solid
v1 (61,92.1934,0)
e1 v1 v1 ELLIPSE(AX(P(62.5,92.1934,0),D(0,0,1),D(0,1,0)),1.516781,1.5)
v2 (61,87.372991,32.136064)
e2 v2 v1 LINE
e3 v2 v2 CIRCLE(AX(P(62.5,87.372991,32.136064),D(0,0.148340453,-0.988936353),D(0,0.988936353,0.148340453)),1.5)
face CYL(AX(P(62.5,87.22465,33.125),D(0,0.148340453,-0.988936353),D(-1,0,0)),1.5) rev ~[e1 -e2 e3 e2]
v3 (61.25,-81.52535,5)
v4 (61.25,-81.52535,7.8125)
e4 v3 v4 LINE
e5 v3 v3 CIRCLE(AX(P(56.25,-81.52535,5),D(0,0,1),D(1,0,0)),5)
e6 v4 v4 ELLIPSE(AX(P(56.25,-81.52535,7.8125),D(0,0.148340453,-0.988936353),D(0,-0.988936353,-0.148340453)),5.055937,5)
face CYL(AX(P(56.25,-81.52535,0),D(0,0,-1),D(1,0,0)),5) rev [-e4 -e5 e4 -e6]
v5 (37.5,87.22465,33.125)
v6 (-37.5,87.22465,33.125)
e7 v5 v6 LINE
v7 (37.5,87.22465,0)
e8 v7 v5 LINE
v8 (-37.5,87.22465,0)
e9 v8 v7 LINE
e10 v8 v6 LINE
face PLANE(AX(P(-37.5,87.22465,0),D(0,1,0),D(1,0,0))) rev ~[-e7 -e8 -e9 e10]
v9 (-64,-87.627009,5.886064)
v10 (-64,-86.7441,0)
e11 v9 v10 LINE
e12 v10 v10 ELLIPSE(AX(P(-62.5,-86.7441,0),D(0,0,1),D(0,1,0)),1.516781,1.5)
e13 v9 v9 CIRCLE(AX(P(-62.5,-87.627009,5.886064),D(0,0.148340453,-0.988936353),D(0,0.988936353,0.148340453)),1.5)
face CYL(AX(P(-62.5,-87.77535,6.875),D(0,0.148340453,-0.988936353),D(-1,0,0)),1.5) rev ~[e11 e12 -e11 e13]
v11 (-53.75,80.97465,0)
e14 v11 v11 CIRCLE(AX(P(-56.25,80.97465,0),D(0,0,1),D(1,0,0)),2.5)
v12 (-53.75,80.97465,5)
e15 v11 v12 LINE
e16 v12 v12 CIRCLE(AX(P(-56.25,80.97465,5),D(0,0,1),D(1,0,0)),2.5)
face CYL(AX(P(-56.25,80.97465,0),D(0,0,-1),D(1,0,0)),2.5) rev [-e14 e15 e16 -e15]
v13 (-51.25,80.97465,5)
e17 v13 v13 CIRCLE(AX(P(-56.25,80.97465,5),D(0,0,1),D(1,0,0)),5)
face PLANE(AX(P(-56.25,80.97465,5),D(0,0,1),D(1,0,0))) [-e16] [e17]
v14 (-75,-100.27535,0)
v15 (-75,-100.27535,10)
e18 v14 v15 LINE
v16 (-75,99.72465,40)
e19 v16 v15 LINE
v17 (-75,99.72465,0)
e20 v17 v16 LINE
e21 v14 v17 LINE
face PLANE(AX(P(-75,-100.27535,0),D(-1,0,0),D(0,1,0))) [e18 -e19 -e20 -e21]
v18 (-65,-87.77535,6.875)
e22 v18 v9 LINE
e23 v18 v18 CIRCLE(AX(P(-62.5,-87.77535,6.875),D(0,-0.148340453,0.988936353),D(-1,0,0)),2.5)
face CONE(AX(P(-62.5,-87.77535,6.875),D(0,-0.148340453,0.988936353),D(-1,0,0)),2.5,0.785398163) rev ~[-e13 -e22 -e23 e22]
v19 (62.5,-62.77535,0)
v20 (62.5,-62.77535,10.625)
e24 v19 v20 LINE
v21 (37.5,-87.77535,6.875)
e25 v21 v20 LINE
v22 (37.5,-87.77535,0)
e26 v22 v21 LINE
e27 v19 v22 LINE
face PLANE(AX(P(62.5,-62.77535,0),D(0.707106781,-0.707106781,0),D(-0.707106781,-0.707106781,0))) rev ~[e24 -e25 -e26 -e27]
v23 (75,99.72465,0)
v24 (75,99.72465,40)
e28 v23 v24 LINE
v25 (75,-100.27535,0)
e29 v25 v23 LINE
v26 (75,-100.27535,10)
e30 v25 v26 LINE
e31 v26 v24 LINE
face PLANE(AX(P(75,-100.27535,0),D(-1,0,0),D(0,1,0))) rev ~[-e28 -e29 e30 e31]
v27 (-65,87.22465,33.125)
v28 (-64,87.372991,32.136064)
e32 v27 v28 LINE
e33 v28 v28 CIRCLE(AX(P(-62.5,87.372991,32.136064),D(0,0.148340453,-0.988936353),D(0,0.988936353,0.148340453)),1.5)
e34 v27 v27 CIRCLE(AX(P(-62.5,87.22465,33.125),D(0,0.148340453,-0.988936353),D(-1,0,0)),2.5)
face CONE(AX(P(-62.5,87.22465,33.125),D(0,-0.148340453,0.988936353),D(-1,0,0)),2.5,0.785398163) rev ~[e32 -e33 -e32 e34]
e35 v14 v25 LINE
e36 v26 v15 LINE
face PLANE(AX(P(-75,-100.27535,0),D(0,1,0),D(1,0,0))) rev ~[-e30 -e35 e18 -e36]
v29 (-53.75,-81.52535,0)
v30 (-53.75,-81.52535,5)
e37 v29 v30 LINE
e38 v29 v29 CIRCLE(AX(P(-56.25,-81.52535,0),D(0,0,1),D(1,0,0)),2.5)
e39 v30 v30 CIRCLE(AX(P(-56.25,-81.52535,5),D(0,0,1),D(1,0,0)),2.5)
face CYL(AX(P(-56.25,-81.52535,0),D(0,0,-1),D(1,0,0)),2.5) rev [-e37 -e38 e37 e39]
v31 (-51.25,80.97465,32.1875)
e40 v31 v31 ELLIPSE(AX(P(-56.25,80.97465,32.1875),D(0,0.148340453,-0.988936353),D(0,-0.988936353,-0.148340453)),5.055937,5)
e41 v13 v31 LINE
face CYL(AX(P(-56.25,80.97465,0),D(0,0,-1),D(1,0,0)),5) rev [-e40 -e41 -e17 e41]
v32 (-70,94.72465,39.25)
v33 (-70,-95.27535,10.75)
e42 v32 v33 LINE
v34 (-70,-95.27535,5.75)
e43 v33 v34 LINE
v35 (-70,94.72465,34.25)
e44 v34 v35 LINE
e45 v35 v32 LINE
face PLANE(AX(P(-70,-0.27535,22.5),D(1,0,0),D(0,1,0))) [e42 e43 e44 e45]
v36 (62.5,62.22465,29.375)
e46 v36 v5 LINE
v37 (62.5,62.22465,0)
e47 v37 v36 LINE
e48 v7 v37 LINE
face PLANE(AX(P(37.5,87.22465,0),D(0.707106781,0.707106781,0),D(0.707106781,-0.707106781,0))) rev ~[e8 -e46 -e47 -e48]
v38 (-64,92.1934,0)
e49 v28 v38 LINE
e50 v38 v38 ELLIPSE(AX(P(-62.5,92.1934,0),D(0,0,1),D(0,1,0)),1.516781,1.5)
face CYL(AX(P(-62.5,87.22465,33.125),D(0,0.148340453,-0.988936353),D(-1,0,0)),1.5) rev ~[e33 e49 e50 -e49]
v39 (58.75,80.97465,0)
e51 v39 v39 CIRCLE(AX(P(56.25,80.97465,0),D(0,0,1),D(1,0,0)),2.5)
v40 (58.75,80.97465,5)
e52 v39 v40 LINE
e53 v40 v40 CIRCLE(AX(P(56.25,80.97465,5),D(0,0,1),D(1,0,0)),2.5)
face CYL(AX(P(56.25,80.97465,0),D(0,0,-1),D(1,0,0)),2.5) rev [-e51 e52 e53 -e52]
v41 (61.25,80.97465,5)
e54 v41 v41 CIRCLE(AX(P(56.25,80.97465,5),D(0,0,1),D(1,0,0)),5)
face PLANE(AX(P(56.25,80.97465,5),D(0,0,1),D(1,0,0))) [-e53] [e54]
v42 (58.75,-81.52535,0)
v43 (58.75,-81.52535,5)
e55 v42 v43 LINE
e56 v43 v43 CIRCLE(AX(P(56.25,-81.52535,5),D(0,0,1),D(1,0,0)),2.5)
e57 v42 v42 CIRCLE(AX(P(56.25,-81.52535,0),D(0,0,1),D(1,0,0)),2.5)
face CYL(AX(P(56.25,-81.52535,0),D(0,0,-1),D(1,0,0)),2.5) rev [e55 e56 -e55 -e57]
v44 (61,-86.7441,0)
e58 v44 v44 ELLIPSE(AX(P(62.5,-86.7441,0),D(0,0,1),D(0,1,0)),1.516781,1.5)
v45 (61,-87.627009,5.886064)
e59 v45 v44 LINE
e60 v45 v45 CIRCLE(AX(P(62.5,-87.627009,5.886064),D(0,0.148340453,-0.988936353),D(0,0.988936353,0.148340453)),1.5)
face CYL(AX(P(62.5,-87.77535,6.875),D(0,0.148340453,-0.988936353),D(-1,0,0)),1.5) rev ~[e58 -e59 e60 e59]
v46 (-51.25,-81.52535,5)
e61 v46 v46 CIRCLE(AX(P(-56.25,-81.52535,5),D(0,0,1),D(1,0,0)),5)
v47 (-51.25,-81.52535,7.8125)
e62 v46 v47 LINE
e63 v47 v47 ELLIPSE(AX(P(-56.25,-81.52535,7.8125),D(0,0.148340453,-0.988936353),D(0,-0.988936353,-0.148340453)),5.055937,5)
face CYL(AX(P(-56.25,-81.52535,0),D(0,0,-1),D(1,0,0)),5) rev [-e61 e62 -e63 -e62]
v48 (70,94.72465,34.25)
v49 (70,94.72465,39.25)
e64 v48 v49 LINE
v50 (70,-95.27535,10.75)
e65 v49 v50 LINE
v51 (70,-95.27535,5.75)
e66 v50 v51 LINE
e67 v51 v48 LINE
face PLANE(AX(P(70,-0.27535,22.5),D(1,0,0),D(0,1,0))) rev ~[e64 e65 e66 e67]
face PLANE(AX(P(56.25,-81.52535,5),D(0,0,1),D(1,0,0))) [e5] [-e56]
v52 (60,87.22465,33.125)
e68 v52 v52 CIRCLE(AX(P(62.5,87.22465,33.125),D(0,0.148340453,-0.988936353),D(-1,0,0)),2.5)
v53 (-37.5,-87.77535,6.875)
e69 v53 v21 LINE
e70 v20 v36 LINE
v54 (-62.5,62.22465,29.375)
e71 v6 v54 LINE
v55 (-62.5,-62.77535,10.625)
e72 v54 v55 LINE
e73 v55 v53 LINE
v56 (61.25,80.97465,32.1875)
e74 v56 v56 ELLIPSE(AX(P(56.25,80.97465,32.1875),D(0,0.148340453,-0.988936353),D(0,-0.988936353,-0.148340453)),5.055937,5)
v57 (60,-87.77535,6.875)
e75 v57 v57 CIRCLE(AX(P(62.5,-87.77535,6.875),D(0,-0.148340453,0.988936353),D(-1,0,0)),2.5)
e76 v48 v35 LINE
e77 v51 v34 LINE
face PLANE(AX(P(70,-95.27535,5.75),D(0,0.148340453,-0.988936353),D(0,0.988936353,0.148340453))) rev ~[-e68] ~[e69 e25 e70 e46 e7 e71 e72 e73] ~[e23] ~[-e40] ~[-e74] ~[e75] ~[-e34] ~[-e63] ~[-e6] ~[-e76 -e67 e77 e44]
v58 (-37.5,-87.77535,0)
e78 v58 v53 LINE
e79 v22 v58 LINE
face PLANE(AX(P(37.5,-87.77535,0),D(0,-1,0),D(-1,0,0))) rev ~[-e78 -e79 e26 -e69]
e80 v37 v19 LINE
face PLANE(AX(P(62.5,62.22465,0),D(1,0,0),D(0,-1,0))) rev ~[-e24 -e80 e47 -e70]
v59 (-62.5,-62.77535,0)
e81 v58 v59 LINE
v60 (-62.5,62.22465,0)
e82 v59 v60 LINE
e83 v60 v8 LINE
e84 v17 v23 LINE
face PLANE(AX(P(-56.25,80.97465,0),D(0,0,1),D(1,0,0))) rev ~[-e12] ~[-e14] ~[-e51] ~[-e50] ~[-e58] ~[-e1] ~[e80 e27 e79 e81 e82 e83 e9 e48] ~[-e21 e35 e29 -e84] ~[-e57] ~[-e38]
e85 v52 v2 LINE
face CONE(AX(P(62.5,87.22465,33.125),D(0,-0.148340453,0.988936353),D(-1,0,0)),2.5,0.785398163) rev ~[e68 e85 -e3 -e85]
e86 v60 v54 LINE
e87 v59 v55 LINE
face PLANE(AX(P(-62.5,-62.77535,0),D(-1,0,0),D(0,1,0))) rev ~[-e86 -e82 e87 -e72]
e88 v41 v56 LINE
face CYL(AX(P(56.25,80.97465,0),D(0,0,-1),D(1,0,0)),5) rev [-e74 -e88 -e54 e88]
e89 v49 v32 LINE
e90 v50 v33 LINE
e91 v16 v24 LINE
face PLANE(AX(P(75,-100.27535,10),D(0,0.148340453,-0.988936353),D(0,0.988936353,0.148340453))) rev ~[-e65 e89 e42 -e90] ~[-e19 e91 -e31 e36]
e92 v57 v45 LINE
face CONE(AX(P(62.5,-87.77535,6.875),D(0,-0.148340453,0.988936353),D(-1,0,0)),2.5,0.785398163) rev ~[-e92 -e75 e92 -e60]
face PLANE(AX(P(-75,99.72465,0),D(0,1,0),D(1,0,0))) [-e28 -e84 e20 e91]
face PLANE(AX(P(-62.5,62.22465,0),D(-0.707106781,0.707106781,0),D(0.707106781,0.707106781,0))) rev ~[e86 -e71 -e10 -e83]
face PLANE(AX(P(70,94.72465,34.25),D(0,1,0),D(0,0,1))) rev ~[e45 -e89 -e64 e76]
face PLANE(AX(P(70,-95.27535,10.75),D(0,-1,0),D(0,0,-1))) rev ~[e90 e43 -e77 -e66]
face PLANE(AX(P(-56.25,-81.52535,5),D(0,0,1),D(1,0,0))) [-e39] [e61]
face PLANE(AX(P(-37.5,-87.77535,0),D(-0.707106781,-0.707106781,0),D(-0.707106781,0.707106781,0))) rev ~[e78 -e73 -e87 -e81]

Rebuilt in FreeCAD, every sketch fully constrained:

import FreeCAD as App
import Part
import Sketcher

doc = App.newDocument("Part")
body = doc.addObject("PartDesign::Body", "Body")

sketch1 = body.newObject("Sketcher::SketchObject", "Sketch")
sketch1.AttachmentSupport = (doc.getObject("XY_Plane"), [""])
sketch1.MapMode = "FlatFace"
sketch1.addGeometry([
    Part.LineSegment(App.Vector(-75, 99.72465, 0), App.Vector(-75, -100.27535, 0)),
    Part.LineSegment(App.Vector(-75, -100.27535, 0), App.Vector(75, -100.27535, 0)),
    Part.LineSegment(App.Vector(75, -100.27535, 0), App.Vector(75, 99.72465, 0)),
    Part.LineSegment(App.Vector(75, 99.72465, 0), App.Vector(-75, 99.72465, 0)),
    Part.Circle(App.Vector(-56.25, -81.52535, 0), App.Vector(0, 0, 1), 5),
    Part.Circle(App.Vector(56.25, -81.52535, 0), App.Vector(0, 0, 1), 5),
    Part.Circle(App.Vector(-56.25, 80.97465, 0), App.Vector(0, 0, 1), 5),
    Part.LineSegment(App.Vector(-62.5, -62.77535, 0), App.Vector(-62.5, 62.22465, 0)),
    Part.LineSegment(App.Vector(-62.5, 62.22465, 0), App.Vector(-37.5, 87.22465, 0)),
    Part.LineSegment(App.Vector(-37.5, 87.22465, 0), App.Vector(37.5, 87.22465, 0)),
    Part.LineSegment(App.Vector(37.5, 87.22465, 0), App.Vector(62.5, 62.22465, 0)),
    Part.LineSegment(App.Vector(62.5, 62.22465, 0), App.Vector(62.5, -62.77535, 0)),
    Part.LineSegment(App.Vector(62.5, -62.77535, 0), App.Vector(37.5, -87.77535, 0)),
    Part.LineSegment(App.Vector(37.5, -87.77535, 0), App.Vector(-37.5, -87.77535, 0)),
    Part.LineSegment(App.Vector(-37.5, -87.77535, 0), App.Vector(-62.5, -62.77535, 0)),
    Part.Circle(App.Vector(56.25, 80.97465, 0), App.Vector(0, 0, 1), 5),
], False)
sketch1.addConstraint([
    Sketcher.Constraint("Coincident", 0, 2, 1, 1),
    Sketcher.Constraint("Coincident", 1, 2, 2, 1),
    Sketcher.Constraint("Coincident", 2, 2, 3, 1),
    Sketcher.Constraint("Coincident", 3, 2, 0, 1),
    Sketcher.Constraint("Coincident", 7, 2, 8, 1),
    Sketcher.Constraint("Coincident", 8, 2, 9, 1),
    Sketcher.Constraint("Coincident", 9, 2, 10, 1),
    Sketcher.Constraint("Coincident", 10, 2, 11, 1),
    Sketcher.Constraint("Coincident", 11, 2, 12, 1),
    Sketcher.Constraint("Coincident", 12, 2, 13, 1),
    Sketcher.Constraint("Coincident", 13, 2, 14, 1),
    Sketcher.Constraint("Coincident", 14, 2, 7, 1),
    Sketcher.Constraint("Vertical", 0),
    Sketcher.Constraint("Horizontal", 1),
    Sketcher.Constraint("Vertical", 2),
    Sketcher.Constraint("Horizontal", 3),
    Sketcher.Constraint("Vertical", 7),
    Sketcher.Constraint("Horizontal", 9),
    Sketcher.Constraint("Vertical", 11),
    Sketcher.Constraint("Horizontal", 13),
    Sketcher.Constraint("Equal", 4, 5),
    Sketcher.Constraint("Equal", 5, 6),
    Sketcher.Constraint("Equal", 6, 15),
    Sketcher.Constraint("Symmetric", 4, 3, 5, 3, -2),
    Sketcher.Constraint("Symmetric", 6, 3, 15, 3, -2),
    Sketcher.Constraint("Symmetric", 7, 2, 10, 2, -2),
    Sketcher.Constraint("Perpendicular", 8, 10),
    Sketcher.Constraint("Perpendicular", 10, 12),
    Sketcher.Constraint("Perpendicular", 12, 14),
    Sketcher.Constraint("Horizontal", 11, 2, 14, 2),
    Sketcher.Constraint("Vertical", 4, 3, 6, 3),
    Sketcher.Constraint("Vertical", 9, 2, 12, 2),
    Sketcher.Constraint("Vertical", 8, 2, 13, 2),
    Sketcher.Constraint("Diameter", 4, 10.0),
    Sketcher.Constraint("DistanceX", 1, 1, 1, 2, 150.0),
    Sketcher.Constraint("DistanceX", 9, 1, 9, 2, 75.0),
    Sketcher.Constraint("DistanceY", 0, 2, 0, 1, 200.0),
    Sketcher.Constraint("DistanceY", 7, 1, 7, 2, 125.0),
    Sketcher.Constraint("DistanceX", 0, 2, -1, 1, 75.0),
    Sketcher.Constraint("DistanceX", 7, 2, 8, 2, 25.0),
    Sketcher.Constraint("DistanceX", 4, 3, 5, 3, 112.5),
    Sketcher.Constraint("DistanceY", 4, 3, 6, 3, 162.5),
    Sketcher.Constraint("DistanceY", 7, 2, 3, 2, 37.5),
    Sketcher.Constraint("DistanceY", 0, 2, 4, 3, 18.75),
    Sketcher.Constraint("DistanceY", 4, 3, -1, 1, 81.52535),
])
pad1 = body.newObject("PartDesign::Pad", "Pad")
pad1.Profile = sketch1
pad1.Length = 40

sketch2 = body.newObject("Sketcher::SketchObject", "Sketch001")
sketch2.AttachmentSupport = (doc.getObject("YZ_Plane"), [""])
sketch2.MapMode = "FlatFace"
sketch2.AttachmentOffset = App.Placement(App.Vector(0, 0, 75), App.Rotation())
sketch2.addGeometry([
    Part.LineSegment(App.Vector(99.72465, 40, 0), App.Vector(-100.27535, 40, 0)),
    Part.LineSegment(App.Vector(-100.27535, 40, 0), App.Vector(-100.27535, 10, 0)),
    Part.LineSegment(App.Vector(-100.27535, 10, 0), App.Vector(99.72465, 40, 0)),
], False)
sketch2.addConstraint([
    Sketcher.Constraint("Coincident", 0, 2, 1, 1),
    Sketcher.Constraint("Coincident", 1, 2, 2, 1),
    Sketcher.Constraint("Coincident", 2, 2, 0, 1),
    Sketcher.Constraint("Horizontal", 0),
    Sketcher.Constraint("Vertical", 1),
    Sketcher.Constraint("DistanceX", 0, 2, 0, 1, 200.0),
    Sketcher.Constraint("DistanceY", 1, 2, 1, 1, 30.0),
    Sketcher.Constraint("DistanceY", -1, 1, 0, 2, 40.0),
    Sketcher.Constraint("DistanceX", 0, 2, -1, 1, 100.27535),
])
pocket1 = body.newObject("PartDesign::Pocket", "Pocket")
pocket1.Profile = sketch2
pocket1.Length = 155

sketch3 = body.newObject("Sketcher::SketchObject", "Sketch002")
sketch3.AttachmentSupport = (doc.getObject("YZ_Plane"), [""])
sketch3.MapMode = "FlatFace"
sketch3.AttachmentOffset = App.Placement(App.Vector(0, 0, 70), App.Rotation())
sketch3.addGeometry([
    Part.LineSegment(App.Vector(94.72465, 39.25, 0), App.Vector(-95.27535, 10.75, 0)),
    Part.LineSegment(App.Vector(-95.27535, 10.75, 0), App.Vector(-95.27535, 5.75, 0)),
    Part.LineSegment(App.Vector(-95.27535, 5.75, 0), App.Vector(94.72465, 34.25, 0)),
    Part.LineSegment(App.Vector(94.72465, 34.25, 0), App.Vector(94.72465, 39.25, 0)),
], False)
sketch3.addConstraint([
    Sketcher.Constraint("Coincident", 0, 2, 1, 1),
    Sketcher.Constraint("Coincident", 1, 2, 2, 1),
    Sketcher.Constraint("Coincident", 2, 2, 3, 1),
    Sketcher.Constraint("Coincident", 3, 2, 0, 1),
    Sketcher.Constraint("Vertical", 1),
    Sketcher.Constraint("Vertical", 3),
    Sketcher.Constraint("Parallel", 0, 2),
    Sketcher.Constraint("DistanceY", 1, 2, 1, 1, 5.0),
    Sketcher.Constraint("DistanceX", 0, 2, 2, 2, 190.0),
    Sketcher.Constraint("DistanceY", 0, 2, 2, 2, 23.5),
    Sketcher.Constraint("DistanceY", -1, 1, 0, 2, 10.75),
    Sketcher.Constraint("DistanceX", 0, 2, -1, 1, 95.27535),
])
pocket2 = body.newObject("PartDesign::Pocket", "Pocket001")
pocket2.Profile = sketch3
pocket2.Length = 140

sketch4 = body.newObject("Sketcher::SketchObject", "Sketch003")
sketch4.AttachmentSupport = (doc.getObject("XY_Plane"), [""])
sketch4.MapMode = "FlatFace"
sketch4.addGeometry([
    Part.Circle(App.Vector(-56.25, 80.97465, 0), App.Vector(0, 0, 1), 5),
    Part.Circle(App.Vector(-56.25, 80.97465, 0), App.Vector(0, 0, 1), 2.5),
    Part.Circle(App.Vector(56.25, 80.97465, 0), App.Vector(0, 0, 1), 5),
    Part.Circle(App.Vector(56.25, 80.97465, 0), App.Vector(0, 0, 1), 2.5),
    Part.Circle(App.Vector(56.25, -81.52535, 0), App.Vector(0, 0, 1), 5),
    Part.Circle(App.Vector(56.25, -81.52535, 0), App.Vector(0, 0, 1), 2.5),
    Part.Circle(App.Vector(-56.25, -81.52535, 0), App.Vector(0, 0, 1), 5),
    Part.Circle(App.Vector(-56.25, -81.52535, 0), App.Vector(0, 0, 1), 2.5),
], False)
sketch4.addConstraint([
    Sketcher.Constraint("Coincident", 1, 3, 0, 3),
    Sketcher.Constraint("Coincident", 3, 3, 2, 3),
    Sketcher.Constraint("Coincident", 5, 3, 4, 3),
    Sketcher.Constraint("Coincident", 7, 3, 6, 3),
    Sketcher.Constraint("Equal", 0, 2),
    Sketcher.Constraint("Equal", 1, 3),
    Sketcher.Constraint("Equal", 2, 4),
    Sketcher.Constraint("Equal", 3, 5),
    Sketcher.Constraint("Equal", 4, 6),
    Sketcher.Constraint("Equal", 5, 7),
    Sketcher.Constraint("Symmetric", 0, 3, 2, 3, -2),
    Sketcher.Constraint("Symmetric", 4, 3, 6, 3, -2),
    Sketcher.Constraint("Vertical", 3, 3, 4, 3),
    Sketcher.Constraint("Diameter", 0, 10.0),
    Sketcher.Constraint("Diameter", 1, 5.0),
    Sketcher.Constraint("DistanceX", 0, 3, 2, 3, 112.5),
    Sketcher.Constraint("DistanceY", 4, 3, 2, 3, 162.5),
    Sketcher.Constraint("DistanceY", -1, 1, 0, 3, 80.97465),
])
pad2 = body.newObject("PartDesign::Pad", "Pad001")
pad2.Profile = sketch4
pad2.Length = 5

sketch5 = body.newObject("Sketcher::SketchObject", "Sketch004")
sketch5.Placement = App.Placement(App.Vector(0, -2.940044, 19.600296), App.Rotation(App.Vector(1, 0, 0), App.Vector(0, 0.988936353, 0.148340453), App.Vector(0, -0.148340453, 0.988936353), "ZXY"))
sketch5.addGeometry([
    Part.Circle(App.Vector(-62.5, -85.784394, 0), App.Vector(0, 0, 1), 1.5),
    Part.Circle(App.Vector(-62.5, 91.173405, 0), App.Vector(0, 0, 1), 1.5),
    Part.Circle(App.Vector(62.5, 91.173405, 0), App.Vector(0, 0, 1), 1.5),
    Part.Circle(App.Vector(62.5, -85.784394, 0), App.Vector(0, 0, 1), 1.5),
], False)
sketch5.addConstraint([
    Sketcher.Constraint("Equal", 0, 1),
    Sketcher.Constraint("Equal", 1, 2),
    Sketcher.Constraint("Equal", 2, 3),
    Sketcher.Constraint("Symmetric", 1, 3, 2, 3, -2),
    Sketcher.Constraint("Symmetric", 0, 3, 3, 3, -2),
    Sketcher.Constraint("Vertical", 0, 3, 1, 3),
    Sketcher.Constraint("Diameter", 0, 3.0),
    Sketcher.Constraint("DistanceX", 1, 3, 2, 3, 125.0),
    Sketcher.Constraint("DistanceY", 0, 3, 1, 3, 176.957799),
    Sketcher.Constraint("DistanceY", 0, 3, -1, 1, 85.784394),
])
doc.recompute()
hole = body.newObject("PartDesign::Hole", "Hole")
hole.Profile = sketch5
hole.ThreadType = "None"
hole.Diameter = 3
hole.DepthType = "ThroughAll"
hole.HoleCutType = "Countersink"
hole.HoleCutDiameter = 5
hole.HoleCutCountersinkAngle = 90

doc.recompute()
